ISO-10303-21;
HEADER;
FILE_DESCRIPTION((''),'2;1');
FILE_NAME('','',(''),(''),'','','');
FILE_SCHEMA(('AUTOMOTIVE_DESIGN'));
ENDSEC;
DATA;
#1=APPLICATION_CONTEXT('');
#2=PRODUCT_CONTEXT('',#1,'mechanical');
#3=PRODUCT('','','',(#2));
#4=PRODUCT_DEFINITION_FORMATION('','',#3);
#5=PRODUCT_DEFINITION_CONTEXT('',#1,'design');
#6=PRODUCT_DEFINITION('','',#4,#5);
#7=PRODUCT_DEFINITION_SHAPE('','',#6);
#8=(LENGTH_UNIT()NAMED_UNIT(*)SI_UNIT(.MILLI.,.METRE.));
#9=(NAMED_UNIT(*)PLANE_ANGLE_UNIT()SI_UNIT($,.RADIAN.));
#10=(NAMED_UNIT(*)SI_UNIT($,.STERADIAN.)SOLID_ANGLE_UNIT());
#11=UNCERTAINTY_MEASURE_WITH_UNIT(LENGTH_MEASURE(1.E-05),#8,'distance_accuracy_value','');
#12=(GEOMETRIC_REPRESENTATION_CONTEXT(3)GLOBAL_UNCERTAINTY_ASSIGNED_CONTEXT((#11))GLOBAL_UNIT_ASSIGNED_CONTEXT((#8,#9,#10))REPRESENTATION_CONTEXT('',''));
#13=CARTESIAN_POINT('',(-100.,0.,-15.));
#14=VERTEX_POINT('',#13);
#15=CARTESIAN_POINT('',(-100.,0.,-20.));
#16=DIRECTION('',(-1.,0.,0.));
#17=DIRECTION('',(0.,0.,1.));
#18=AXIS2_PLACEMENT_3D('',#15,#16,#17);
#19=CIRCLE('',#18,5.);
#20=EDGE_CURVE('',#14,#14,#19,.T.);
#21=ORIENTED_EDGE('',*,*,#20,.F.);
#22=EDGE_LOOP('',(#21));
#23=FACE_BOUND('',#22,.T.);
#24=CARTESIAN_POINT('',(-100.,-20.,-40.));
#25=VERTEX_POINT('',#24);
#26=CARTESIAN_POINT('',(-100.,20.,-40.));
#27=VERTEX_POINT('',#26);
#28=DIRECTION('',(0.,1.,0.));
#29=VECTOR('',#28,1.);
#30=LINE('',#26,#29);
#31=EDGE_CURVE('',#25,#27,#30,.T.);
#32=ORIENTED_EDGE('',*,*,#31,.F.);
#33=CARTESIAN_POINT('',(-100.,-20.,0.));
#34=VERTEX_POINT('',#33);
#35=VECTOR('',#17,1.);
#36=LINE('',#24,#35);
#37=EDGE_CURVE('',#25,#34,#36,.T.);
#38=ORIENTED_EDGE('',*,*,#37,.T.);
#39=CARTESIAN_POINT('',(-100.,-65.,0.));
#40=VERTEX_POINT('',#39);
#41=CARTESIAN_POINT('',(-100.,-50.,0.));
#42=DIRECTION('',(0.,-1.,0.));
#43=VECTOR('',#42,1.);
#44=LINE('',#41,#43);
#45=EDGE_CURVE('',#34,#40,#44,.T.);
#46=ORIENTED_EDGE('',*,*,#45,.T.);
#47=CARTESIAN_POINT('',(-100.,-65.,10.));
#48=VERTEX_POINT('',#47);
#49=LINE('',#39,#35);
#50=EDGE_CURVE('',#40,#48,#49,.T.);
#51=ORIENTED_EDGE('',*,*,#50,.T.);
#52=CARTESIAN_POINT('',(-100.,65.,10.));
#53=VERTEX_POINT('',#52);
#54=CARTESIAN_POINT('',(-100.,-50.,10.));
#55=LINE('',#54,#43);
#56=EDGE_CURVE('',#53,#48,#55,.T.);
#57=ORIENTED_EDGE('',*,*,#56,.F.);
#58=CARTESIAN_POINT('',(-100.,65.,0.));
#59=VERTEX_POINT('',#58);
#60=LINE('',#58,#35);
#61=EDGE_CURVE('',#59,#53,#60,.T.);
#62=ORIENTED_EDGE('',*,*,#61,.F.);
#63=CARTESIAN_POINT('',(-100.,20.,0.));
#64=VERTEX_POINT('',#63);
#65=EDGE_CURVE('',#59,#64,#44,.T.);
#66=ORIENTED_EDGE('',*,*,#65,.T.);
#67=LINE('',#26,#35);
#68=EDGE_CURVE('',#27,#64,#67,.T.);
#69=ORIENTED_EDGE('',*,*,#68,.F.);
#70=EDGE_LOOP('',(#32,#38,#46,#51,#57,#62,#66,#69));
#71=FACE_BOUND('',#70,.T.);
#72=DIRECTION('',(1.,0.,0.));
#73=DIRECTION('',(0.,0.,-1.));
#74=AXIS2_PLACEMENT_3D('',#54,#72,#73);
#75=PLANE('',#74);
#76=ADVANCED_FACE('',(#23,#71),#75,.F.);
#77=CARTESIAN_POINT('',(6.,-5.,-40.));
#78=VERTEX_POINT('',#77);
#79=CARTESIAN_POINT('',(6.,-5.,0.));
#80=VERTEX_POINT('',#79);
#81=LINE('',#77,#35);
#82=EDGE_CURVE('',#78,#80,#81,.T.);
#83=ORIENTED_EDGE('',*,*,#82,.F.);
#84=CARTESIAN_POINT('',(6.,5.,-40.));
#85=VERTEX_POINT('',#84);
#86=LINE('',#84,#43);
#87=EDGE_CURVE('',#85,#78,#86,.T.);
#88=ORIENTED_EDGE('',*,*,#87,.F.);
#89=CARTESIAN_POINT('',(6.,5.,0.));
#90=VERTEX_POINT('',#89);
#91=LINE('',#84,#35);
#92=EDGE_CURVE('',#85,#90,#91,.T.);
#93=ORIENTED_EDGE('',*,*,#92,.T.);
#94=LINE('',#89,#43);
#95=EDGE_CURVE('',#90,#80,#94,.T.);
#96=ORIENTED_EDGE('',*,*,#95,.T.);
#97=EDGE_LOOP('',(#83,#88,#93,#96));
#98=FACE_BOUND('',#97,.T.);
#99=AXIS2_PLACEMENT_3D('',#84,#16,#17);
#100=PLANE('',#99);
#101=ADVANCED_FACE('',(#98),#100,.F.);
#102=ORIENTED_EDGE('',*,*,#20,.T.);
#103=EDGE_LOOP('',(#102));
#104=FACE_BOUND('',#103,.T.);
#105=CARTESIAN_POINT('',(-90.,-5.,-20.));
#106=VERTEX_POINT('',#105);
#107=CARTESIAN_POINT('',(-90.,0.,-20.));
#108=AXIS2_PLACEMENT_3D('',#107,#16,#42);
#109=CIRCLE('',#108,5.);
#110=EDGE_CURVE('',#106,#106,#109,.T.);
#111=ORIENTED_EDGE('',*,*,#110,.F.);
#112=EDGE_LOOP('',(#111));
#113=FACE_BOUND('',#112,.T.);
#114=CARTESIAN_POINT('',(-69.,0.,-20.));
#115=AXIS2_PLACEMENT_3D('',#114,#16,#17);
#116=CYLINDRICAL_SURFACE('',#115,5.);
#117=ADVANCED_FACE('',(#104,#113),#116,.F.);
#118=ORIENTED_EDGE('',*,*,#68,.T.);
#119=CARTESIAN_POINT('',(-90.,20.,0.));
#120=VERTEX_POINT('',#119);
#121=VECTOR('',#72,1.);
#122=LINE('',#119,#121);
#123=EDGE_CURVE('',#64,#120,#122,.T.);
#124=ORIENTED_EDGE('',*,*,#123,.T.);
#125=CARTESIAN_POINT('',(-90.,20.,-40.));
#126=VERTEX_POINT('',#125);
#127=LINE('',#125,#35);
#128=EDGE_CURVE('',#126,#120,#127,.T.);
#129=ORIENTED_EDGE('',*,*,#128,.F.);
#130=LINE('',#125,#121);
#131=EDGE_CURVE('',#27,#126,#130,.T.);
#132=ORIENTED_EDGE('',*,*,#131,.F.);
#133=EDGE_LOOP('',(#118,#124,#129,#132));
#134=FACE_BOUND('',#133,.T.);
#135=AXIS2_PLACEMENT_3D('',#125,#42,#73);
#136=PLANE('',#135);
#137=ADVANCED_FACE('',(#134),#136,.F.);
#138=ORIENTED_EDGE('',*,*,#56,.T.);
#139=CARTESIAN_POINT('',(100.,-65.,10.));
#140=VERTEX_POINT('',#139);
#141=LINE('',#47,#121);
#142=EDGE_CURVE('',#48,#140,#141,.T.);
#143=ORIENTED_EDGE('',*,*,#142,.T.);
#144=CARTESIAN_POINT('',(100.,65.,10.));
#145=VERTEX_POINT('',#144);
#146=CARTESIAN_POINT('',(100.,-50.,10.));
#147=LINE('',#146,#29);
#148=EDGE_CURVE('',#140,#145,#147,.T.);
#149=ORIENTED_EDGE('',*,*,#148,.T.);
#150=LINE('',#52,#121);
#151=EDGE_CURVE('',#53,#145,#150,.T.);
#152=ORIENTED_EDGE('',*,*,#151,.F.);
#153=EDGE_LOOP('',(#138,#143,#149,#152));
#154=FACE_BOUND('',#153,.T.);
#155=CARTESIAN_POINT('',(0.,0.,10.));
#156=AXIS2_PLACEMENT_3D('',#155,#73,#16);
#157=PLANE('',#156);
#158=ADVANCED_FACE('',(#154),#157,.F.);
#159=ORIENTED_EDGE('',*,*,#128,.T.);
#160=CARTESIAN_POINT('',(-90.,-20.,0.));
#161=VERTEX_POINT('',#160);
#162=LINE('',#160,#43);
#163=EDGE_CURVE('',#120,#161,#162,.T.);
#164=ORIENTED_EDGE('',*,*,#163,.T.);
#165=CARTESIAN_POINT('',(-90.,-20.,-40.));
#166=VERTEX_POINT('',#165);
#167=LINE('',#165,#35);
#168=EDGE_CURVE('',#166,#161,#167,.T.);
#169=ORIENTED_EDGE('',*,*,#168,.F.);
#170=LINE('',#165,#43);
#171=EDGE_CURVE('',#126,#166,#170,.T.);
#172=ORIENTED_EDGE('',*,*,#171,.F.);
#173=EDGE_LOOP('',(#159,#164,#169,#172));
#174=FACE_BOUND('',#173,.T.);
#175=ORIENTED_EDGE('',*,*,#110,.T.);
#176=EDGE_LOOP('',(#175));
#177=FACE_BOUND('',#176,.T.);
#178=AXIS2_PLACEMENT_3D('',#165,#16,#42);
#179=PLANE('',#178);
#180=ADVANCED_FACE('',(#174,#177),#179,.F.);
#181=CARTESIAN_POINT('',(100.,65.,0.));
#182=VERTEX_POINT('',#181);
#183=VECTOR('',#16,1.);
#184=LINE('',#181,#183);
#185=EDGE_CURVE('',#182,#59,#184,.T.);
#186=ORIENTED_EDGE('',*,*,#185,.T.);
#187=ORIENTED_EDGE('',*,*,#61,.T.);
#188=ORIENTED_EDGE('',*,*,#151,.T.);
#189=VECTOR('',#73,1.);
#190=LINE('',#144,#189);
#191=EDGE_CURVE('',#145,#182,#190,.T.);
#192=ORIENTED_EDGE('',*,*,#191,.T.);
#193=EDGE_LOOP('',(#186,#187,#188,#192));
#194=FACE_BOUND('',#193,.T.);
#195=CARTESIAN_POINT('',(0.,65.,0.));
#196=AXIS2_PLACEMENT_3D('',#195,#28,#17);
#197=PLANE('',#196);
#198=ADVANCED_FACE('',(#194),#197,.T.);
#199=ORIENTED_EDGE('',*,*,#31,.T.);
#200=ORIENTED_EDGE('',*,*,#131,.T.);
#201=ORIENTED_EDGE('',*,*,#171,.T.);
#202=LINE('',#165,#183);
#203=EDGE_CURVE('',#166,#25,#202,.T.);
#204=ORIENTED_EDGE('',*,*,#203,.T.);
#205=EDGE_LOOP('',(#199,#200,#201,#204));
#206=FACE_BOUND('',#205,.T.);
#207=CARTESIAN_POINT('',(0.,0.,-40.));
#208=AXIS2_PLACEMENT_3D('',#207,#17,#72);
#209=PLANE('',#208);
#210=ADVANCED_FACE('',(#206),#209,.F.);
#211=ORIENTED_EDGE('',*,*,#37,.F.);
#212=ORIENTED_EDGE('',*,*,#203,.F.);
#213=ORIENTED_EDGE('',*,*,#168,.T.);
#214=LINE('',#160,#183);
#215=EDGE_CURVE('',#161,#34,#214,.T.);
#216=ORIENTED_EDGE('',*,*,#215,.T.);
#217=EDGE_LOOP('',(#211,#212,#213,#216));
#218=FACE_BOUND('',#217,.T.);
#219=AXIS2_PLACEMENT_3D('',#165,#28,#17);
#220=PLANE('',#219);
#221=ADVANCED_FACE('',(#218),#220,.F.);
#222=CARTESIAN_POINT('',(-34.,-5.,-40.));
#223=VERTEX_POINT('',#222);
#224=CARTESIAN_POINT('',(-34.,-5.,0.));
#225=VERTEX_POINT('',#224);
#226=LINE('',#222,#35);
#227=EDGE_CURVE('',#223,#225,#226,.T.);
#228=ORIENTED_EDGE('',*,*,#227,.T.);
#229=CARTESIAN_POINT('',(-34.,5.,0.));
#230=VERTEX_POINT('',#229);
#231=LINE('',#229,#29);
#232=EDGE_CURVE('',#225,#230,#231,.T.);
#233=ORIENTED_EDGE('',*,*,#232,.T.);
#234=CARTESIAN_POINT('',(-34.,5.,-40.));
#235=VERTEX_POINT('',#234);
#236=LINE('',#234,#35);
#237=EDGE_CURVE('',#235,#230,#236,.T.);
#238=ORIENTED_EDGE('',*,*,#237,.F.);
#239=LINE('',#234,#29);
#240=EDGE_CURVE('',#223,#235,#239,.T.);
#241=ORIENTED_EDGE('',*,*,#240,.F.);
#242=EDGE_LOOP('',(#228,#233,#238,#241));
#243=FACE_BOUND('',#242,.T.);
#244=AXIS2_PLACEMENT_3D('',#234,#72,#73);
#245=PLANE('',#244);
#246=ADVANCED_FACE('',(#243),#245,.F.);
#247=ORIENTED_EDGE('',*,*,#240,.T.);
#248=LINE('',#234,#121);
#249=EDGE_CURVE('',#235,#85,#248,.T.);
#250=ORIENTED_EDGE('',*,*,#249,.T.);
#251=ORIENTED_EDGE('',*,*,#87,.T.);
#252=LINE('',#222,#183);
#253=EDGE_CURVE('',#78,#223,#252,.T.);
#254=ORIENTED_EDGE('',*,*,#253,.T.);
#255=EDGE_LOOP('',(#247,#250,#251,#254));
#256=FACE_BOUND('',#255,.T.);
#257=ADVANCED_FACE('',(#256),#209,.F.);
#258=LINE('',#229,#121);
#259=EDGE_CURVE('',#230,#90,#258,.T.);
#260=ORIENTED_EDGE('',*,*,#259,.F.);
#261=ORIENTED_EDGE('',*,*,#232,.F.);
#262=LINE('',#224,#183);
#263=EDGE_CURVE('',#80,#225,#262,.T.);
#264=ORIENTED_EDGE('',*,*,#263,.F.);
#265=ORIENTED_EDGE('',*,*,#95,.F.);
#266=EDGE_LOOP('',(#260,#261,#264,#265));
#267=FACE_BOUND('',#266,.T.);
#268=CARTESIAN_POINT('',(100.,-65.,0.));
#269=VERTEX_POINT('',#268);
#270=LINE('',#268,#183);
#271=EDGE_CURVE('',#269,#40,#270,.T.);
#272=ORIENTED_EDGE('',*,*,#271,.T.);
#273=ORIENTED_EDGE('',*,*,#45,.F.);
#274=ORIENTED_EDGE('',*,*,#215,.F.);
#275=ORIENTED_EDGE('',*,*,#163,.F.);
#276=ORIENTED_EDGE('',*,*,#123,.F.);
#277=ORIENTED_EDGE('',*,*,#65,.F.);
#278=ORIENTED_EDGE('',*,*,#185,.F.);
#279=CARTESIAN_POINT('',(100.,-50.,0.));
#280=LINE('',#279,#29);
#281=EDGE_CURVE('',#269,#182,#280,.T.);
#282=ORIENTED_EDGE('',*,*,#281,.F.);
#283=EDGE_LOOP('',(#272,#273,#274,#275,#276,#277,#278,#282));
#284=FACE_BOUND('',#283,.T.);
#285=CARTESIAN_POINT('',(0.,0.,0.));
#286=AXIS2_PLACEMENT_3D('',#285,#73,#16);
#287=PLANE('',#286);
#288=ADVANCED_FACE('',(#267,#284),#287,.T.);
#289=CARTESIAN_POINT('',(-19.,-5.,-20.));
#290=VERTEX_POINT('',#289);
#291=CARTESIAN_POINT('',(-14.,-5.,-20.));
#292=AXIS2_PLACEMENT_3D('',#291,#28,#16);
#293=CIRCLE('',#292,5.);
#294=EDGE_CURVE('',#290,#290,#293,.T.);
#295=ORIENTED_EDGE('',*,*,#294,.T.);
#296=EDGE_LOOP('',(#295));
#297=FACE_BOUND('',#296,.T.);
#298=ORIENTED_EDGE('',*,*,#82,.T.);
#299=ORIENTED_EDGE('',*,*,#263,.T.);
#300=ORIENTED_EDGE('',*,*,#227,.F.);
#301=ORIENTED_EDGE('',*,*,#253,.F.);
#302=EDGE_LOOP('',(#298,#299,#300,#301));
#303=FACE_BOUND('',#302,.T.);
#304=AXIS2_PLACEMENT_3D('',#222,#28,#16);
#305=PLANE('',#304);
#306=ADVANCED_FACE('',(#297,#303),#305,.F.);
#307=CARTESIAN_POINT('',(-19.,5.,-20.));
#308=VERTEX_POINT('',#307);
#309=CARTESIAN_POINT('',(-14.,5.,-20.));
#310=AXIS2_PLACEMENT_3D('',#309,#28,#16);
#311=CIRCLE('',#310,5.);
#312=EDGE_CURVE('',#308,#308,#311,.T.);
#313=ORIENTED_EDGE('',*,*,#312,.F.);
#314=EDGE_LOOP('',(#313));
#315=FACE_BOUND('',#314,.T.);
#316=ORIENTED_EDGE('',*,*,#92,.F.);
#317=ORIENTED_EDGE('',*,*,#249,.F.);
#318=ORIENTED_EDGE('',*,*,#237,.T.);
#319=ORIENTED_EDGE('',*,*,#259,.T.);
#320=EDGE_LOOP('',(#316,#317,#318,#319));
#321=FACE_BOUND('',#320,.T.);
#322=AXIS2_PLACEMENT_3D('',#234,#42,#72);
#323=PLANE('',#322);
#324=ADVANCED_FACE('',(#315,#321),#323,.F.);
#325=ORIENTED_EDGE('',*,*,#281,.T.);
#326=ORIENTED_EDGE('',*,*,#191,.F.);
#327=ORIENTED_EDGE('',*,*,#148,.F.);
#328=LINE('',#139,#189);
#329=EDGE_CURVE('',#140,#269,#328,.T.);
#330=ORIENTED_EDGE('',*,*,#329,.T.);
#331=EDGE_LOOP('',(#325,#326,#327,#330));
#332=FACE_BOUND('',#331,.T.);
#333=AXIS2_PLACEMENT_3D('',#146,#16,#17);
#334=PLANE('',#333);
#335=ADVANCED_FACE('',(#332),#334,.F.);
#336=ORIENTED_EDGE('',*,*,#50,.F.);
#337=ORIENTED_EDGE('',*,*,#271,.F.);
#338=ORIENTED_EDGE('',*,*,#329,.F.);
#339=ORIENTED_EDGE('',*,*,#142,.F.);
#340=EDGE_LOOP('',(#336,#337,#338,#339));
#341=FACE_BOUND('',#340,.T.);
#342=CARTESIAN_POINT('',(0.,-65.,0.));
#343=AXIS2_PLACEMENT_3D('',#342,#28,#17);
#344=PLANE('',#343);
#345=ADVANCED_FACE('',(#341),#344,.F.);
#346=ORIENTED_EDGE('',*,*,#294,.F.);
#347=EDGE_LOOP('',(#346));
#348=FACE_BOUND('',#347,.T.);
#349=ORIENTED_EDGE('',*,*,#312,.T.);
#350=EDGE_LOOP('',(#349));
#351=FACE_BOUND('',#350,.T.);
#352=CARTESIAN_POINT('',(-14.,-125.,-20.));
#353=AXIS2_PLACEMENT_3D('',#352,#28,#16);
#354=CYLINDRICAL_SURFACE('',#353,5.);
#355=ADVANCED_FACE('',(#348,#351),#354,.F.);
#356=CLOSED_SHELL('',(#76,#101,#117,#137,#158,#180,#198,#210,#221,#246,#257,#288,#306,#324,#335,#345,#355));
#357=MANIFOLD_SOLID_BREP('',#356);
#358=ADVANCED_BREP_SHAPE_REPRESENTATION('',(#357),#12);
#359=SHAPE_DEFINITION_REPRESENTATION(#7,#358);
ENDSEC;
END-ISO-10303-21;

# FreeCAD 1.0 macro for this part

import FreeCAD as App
import Part
import Sketcher

V = App.Vector


def add_polygon(sketch, points):
    """Adds a closed chain of lines whose ends are joined by coincident constraints."""
    first, n = sketch.GeometryCount, len(points)
    for a, b in zip(points, points[1:] + points[:1]):
        sketch.addGeometry(Part.LineSegment(App.Vector(*a, 0), App.Vector(*b, 0)), False)
    for i in range(n):
        sketch.addConstraint(Sketcher.Constraint("Coincident", first + i, 2, first + (i + 1) % n, 1))

doc = App.newDocument("Part")
params = doc.addObject("Spreadsheet::Sheet", "Params")
for row, (alias, value) in enumerate([
    ("sketch1_width", "200 mm"),
    ("sketch1_height", "100 mm"),
    ("pad1_length", "10 mm"),
    ("sketch2_width", "40 mm"),
    ("sketch2_width2", "10 mm"),
    ("pad2_length", "40 mm"),
    ("sketch3_diameter", "10 mm"),
    ("pocket1_length", "31 mm"),
    ("sketch4_width", "200 mm"),
    ("sketch4_height", "10 mm"),
    ("pad3_length", "130 mm"),
    ("sketch5_diameter", "10 mm"),
    ("pocket2_length", "130 mm"),
], start=1):
    params.set(f"A{row}", alias)
    params.set(f"B{row}", "=" + value)
    params.setAlias(f"B{row}", alias)

body = doc.addObject("PartDesign::Body", "Body")

sketch1 = doc.addObject("Sketcher::SketchObject", "Sketch")
body.addObject(sketch1)
sketch1.AttachmentSupport = (doc.XY_Plane, [""])
sketch1.MapMode = "FlatFace"
add_polygon(sketch1, [(-100, 50), (-100, -50), (100, -50), (100, 50)])
sketch1.addConstraint(Sketcher.Constraint("Vertical", 0))
sketch1.addConstraint(Sketcher.Constraint("Horizontal", 1))
sketch1.addConstraint(Sketcher.Constraint("Vertical", 2))
sketch1.addConstraint(Sketcher.Constraint("Horizontal", 3))
sketch1.addConstraint(Sketcher.Constraint("Symmetric", 0, 2, 2, 2, -1, 1))
sketch1.addConstraint(Sketcher.Constraint("DistanceX", 1, 1, 1, 2, 200.0))
sketch1.addConstraint(Sketcher.Constraint("DistanceY", 0, 2, 0, 1, 100.0))
sketch1.setExpression("Constraints[9]", "Params.sketch1_width")
sketch1.setExpression("Constraints[10]", "Params.sketch1_height")
pad1 = doc.addObject("PartDesign::Pad", "Pad")
body.addObject(pad1)
pad1.Profile = sketch1
pad1.setExpression("Length", "Params.pad1_length")

sketch2 = doc.addObject("Sketcher::SketchObject", "Sketch001")
body.addObject(sketch2)
sketch2.AttachmentSupport = (doc.XY_Plane, [""])
sketch2.MapMode = "FlatFace"
add_polygon(sketch2, [(6, 5), (6, -5), (-34, -5), (-34, 5)])
add_polygon(sketch2, [(-90, 20), (-90, -20), (-100, -20), (-100, 20)])
sketch2.addConstraint(Sketcher.Constraint("Vertical", 0))
sketch2.addConstraint(Sketcher.Constraint("Horizontal", 1))
sketch2.addConstraint(Sketcher.Constraint("Vertical", 2))
sketch2.addConstraint(Sketcher.Constraint("Horizontal", 3))
sketch2.addConstraint(Sketcher.Constraint("Vertical", 4))
sketch2.addConstraint(Sketcher.Constraint("Horizontal", 5))
sketch2.addConstraint(Sketcher.Constraint("Vertical", 6))
sketch2.addConstraint(Sketcher.Constraint("Horizontal", 7))
sketch2.addConstraint(Sketcher.Constraint("Equal", 7, 0))
sketch2.addConstraint(Sketcher.Constraint("Equal", 3, 4))
sketch2.addConstraint(Sketcher.Constraint("DistanceX", 1, 2, 1, 1, 40.0))
sketch2.addConstraint(Sketcher.Constraint("DistanceX", 5, 2, 5, 1, 10.0))
sketch2.addConstraint(Sketcher.Constraint("DistanceX", -1, 1, 0, 2, 6.0))
sketch2.addConstraint(Sketcher.Constraint("DistanceY", 0, 2, -1, 1, 5.0))
sketch2.addConstraint(Sketcher.Constraint("DistanceX", 4, 2, -1, 1, 90.0))
sketch2.addConstraint(Sketcher.Constraint("DistanceY", 4, 2, -1, 1, 20.0))
sketch2.setExpression("Constraints[18]", "Params.sketch2_width")
sketch2.setExpression("Constraints[19]", "Params.sketch2_width2")
pad2 = doc.addObject("PartDesign::Pad", "Pad001")
body.addObject(pad2)
pad2.Profile = sketch2
pad2.setExpression("Length", "Params.pad2_length")
pad2.Reversed = True

sketch3 = doc.addObject("Sketcher::SketchObject", "Sketch002")
body.addObject(sketch3)
sketch3.AttachmentSupport = (doc.YZ_Plane, [""])
sketch3.MapMode = "FlatFace"
sketch3.AttachmentOffset = App.Placement(V(0, 0, -100), App.Rotation())
sketch3.addGeometry(Part.Circle(V(0, -20, 0), V(0, 0, 1), 5), False)
sketch3.addConstraint(Sketcher.Constraint("PointOnObject", 0, 3, -2))
sketch3.addConstraint(Sketcher.Constraint("Diameter", 0, 10.0))
sketch3.addConstraint(Sketcher.Constraint("DistanceY", 0, 3, -1, 1, 20.0))
sketch3.setExpression("Constraints[1]", "Params.sketch3_diameter")
pocket1 = doc.addObject("PartDesign::Pocket", "Pocket")
body.addObject(pocket1)
pocket1.Profile = sketch3
pocket1.setExpression("Length", "Params.pocket1_length")
pocket1.Reversed = True

sketch4 = doc.addObject("Sketcher::SketchObject", "Sketch003")
body.addObject(sketch4)
sketch4.AttachmentSupport = (doc.XZ_Plane, [""])
sketch4.MapMode = "FlatFace"
add_polygon(sketch4, [(-100, 0), (-100, 10), (100, 10), (100, 0)])
sketch4.addConstraint(Sketcher.Constraint("Vertical", 0))
sketch4.addConstraint(Sketcher.Constraint("Horizontal", 1))
sketch4.addConstraint(Sketcher.Constraint("Vertical", 2))
sketch4.addConstraint(Sketcher.Constraint("Horizontal", 3))
sketch4.addConstraint(Sketcher.Constraint("Symmetric", 2, 2, 3, 2, -1, 1))
sketch4.addConstraint(Sketcher.Constraint("DistanceX", 1, 1, 1, 2, 200.0))
sketch4.addConstraint(Sketcher.Constraint("DistanceY", 0, 1, 0, 2, 10.0))
sketch4.setExpression("Constraints[9]", "Params.sketch4_width")
sketch4.setExpression("Constraints[10]", "Params.sketch4_height")
pad3 = doc.addObject("PartDesign::Pad", "Pad002")
body.addObject(pad3)
pad3.Profile = sketch4
pad3.setExpression("Length", "Params.pad3_length")
pad3.Midplane = True

sketch5 = doc.addObject("Sketcher::SketchObject", "Sketch004")
body.addObject(sketch5)
sketch5.AttachmentSupport = (doc.XZ_Plane, [""])
sketch5.MapMode = "FlatFace"
sketch5.AttachmentOffset = App.Placement(V(0, 0, -5), App.Rotation())
sketch5.addGeometry(Part.Circle(V(-14, -20, 0), V(0, 0, 1), 5), False)
sketch5.addConstraint(Sketcher.Constraint("Diameter", 0, 10.0))
sketch5.addConstraint(Sketcher.Constraint("DistanceX", 0, 3, -1, 1, 14.0))
sketch5.addConstraint(Sketcher.Constraint("DistanceY", 0, 3, -1, 1, 20.0))
sketch5.setExpression("Constraints[0]", "Params.sketch5_diameter")
pocket2 = doc.addObject("PartDesign::Pocket", "Pocket001")
body.addObject(pocket2)
pocket2.Profile = sketch5
pocket2.setExpression("Length", "Params.pocket2_length")
pocket2.Reversed = True

doc.recompute()
